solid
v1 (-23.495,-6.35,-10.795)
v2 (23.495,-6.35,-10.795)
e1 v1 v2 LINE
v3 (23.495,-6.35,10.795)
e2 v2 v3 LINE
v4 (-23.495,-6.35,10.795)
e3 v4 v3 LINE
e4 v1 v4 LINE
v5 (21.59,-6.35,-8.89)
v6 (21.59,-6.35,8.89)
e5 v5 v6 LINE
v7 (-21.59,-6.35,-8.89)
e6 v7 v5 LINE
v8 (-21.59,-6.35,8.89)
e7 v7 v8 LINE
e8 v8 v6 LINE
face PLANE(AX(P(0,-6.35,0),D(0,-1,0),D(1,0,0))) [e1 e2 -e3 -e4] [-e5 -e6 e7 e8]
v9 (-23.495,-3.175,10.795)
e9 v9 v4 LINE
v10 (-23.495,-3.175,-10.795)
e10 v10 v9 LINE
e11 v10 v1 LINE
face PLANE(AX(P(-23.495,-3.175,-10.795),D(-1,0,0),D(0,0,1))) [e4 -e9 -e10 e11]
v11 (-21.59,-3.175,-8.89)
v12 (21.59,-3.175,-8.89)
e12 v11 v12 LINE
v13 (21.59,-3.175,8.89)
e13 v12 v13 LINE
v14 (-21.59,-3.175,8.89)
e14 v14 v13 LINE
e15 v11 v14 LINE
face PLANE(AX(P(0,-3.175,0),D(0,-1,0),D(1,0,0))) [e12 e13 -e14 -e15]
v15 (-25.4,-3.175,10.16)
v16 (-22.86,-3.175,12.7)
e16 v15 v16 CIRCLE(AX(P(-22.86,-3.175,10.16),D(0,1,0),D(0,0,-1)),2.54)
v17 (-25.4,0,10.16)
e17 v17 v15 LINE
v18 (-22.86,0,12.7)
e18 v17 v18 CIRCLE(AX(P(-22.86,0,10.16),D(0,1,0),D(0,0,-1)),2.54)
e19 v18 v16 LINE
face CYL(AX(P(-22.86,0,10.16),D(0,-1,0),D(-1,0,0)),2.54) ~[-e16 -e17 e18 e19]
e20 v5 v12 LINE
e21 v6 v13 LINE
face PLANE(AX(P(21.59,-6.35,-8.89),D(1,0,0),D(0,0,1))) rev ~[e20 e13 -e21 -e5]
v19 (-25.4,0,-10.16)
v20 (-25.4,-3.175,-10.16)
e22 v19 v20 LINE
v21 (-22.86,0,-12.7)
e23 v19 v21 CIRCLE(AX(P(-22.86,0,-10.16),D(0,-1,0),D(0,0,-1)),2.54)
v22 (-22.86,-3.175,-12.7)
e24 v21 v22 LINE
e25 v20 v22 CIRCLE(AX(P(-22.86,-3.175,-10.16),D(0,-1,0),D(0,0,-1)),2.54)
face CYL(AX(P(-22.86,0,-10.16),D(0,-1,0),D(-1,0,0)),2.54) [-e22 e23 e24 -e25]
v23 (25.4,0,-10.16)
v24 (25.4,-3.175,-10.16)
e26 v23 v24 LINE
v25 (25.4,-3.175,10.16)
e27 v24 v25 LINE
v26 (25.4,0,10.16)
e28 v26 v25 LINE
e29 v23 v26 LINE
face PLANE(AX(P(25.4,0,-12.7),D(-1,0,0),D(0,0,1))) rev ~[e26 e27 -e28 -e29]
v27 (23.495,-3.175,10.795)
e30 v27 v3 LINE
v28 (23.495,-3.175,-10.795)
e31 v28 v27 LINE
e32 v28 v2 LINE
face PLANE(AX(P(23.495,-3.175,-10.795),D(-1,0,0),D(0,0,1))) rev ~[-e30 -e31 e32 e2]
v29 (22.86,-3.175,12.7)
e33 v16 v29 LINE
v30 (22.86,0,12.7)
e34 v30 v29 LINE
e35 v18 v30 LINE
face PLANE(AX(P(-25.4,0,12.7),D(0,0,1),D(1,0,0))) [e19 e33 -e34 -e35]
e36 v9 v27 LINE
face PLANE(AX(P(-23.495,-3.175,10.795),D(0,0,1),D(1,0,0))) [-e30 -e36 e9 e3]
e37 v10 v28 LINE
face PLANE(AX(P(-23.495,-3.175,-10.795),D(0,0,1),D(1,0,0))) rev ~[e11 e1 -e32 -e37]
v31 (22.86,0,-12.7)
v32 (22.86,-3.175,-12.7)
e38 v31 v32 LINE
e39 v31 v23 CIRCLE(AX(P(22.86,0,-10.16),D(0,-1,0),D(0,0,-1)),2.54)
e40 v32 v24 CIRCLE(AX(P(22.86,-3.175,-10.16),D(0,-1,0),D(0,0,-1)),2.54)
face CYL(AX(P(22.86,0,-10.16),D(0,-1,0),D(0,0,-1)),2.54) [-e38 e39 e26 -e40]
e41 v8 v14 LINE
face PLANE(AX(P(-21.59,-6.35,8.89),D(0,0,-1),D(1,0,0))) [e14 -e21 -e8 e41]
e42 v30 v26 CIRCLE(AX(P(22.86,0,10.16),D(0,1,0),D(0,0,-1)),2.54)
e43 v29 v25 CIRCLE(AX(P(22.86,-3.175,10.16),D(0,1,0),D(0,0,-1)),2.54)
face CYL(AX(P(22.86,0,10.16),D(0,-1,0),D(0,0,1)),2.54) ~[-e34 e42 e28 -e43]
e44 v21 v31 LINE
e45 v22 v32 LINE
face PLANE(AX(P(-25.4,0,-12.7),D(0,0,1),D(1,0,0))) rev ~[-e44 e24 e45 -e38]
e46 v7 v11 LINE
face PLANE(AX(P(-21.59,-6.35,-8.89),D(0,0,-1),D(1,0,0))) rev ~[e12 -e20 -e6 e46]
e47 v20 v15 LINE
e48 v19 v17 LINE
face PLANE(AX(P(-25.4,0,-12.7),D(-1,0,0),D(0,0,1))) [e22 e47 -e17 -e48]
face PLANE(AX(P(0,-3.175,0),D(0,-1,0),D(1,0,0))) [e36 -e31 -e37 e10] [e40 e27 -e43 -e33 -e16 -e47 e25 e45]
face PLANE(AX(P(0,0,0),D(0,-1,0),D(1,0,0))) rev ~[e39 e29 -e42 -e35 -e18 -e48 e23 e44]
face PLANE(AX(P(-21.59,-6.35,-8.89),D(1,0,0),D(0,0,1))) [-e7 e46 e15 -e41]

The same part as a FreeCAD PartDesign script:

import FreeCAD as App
import Part
import Sketcher
Q = App.Units.Quantity


def edges_at(feature, points):
    """Names of the edges that pass closest to the given points."""
    edges = feature.Shape.Edges
    near = lambda p: min(range(len(edges)), key=lambda i: edges[i].distToShape(Part.Vertex(*p))[0])
    return sorted({f"Edge{near(p) + 1}" for p in points})

doc = App.newDocument("Part")
body = doc.addObject("PartDesign::Body", "Body")

# Sketch on XZ plane
sketch1 = body.newObject("Sketcher::SketchObject", "Sketch")
sketch1.AttachmentSupport = (doc.getObject("XZ_Plane"), [""])
sketch1.MapMode = "FlatFace"
sketch1.addGeometry([
    Part.LineSegment(App.Vector(-25, 13, 0), App.Vector(-25, -13, 0)),
    Part.LineSegment(App.Vector(-25, -13, 0), App.Vector(25, -13, 0)),
    Part.LineSegment(App.Vector(25, -13, 0), App.Vector(25, 13, 0)),
    Part.LineSegment(App.Vector(25, 13, 0), App.Vector(-25, 13, 0)),
], False)
sketch1.addConstraint([
    Sketcher.Constraint("Coincident", 0, 2, 1, 1),
    Sketcher.Constraint("Coincident", 1, 2, 2, 1),
    Sketcher.Constraint("Coincident", 2, 2, 3, 1),
    Sketcher.Constraint("Coincident", 3, 2, 0, 1),
    Sketcher.Constraint("Vertical", 0),
    Sketcher.Constraint("Horizontal", 1),
    Sketcher.Constraint("Vertical", 2),
    Sketcher.Constraint("Horizontal", 3),
    Sketcher.Constraint("Symmetric", 0, 2, 2, 2, -1, 1),
    Sketcher.Constraint("DistanceX", 1, 1, 1, 2, Q("2 in")),
    Sketcher.Constraint("DistanceY", 0, 2, 0, 1, Q("1 in")),
])
pad1 = body.newObject("PartDesign::Pad", "Pad")
pad1.Profile = sketch1
pad1.Length = Q("0.125 in")

# Sketch on XZ plane
sketch2 = body.newObject("Sketcher::SketchObject", "Sketch001")
sketch2.AttachmentSupport = (doc.getObject("XZ_Plane"), [""])
sketch2.MapMode = "FlatFace"
sketch2.AttachmentOffset = App.Placement(App.Vector(0, 0, 0.125 * 25.4), App.Rotation())
sketch2.addGeometry([
    Part.LineSegment(App.Vector(-23, 11, 0), App.Vector(-23, -11, 0)),
    Part.LineSegment(App.Vector(-23, -11, 0), App.Vector(23, -11, 0)),
    Part.LineSegment(App.Vector(23, -11, 0), App.Vector(23, 11, 0)),
    Part.LineSegment(App.Vector(23, 11, 0), App.Vector(-23, 11, 0)),
], False)
sketch2.addConstraint([
    Sketcher.Constraint("Coincident", 0, 2, 1, 1),
    Sketcher.Constraint("Coincident", 1, 2, 2, 1),
    Sketcher.Constraint("Coincident", 2, 2, 3, 1),
    Sketcher.Constraint("Coincident", 3, 2, 0, 1),
    Sketcher.Constraint("Vertical", 0),
    Sketcher.Constraint("Horizontal", 1),
    Sketcher.Constraint("Vertical", 2),
    Sketcher.Constraint("Horizontal", 3),
    Sketcher.Constraint("Symmetric", 0, 2, 2, 2, -1, 1),
    Sketcher.Constraint("DistanceX", 1, 1, 1, 2, Q("1.85 in")),
    Sketcher.Constraint("DistanceY", 0, 2, 0, 1, Q("0.85 in")),
])
pad2 = body.newObject("PartDesign::Pad", "Pad001")
pad2.Profile = sketch2
pad2.Length = Q("0.125 in")

# Sketch on XZ plane
sketch3 = body.newObject("Sketcher::SketchObject", "Sketch002")
sketch3.AttachmentSupport = (doc.getObject("XZ_Plane"), [""])
sketch3.MapMode = "FlatFace"
sketch3.AttachmentOffset = App.Placement(App.Vector(0, 0, 0.25 * 25.4), App.Rotation())
sketch3.addGeometry([
    Part.LineSegment(App.Vector(-22, 9, 0), App.Vector(-22, -9, 0)),
    Part.LineSegment(App.Vector(-22, -9, 0), App.Vector(22, -9, 0)),
    Part.LineSegment(App.Vector(22, -9, 0), App.Vector(22, 9, 0)),
    Part.LineSegment(App.Vector(22, 9, 0), App.Vector(-22, 9, 0)),
], False)
sketch3.addConstraint([
    Sketcher.Constraint("Coincident", 0, 2, 1, 1),
    Sketcher.Constraint("Coincident", 1, 2, 2, 1),
    Sketcher.Constraint("Coincident", 2, 2, 3, 1),
    Sketcher.Constraint("Coincident", 3, 2, 0, 1),
    Sketcher.Constraint("Vertical", 0),
    Sketcher.Constraint("Horizontal", 1),
    Sketcher.Constraint("Vertical", 2),
    Sketcher.Constraint("Horizontal", 3),
    Sketcher.Constraint("Symmetric", 0, 2, 2, 2, -1, 1),
    Sketcher.Constraint("DistanceX", 1, 1, 1, 2, Q("1.7 in")),
    Sketcher.Constraint("DistanceY", 0, 2, 0, 1, Q("0.7 in")),
])
pocket1 = body.newObject("PartDesign::Pocket", "Pocket")
pocket1.Profile = sketch3
pocket1.Length = Q("0.125 in")
doc.recompute()

fillet = body.newObject("PartDesign::Fillet", "Fillet")
fillet.Base = (pocket1, edges_at(pocket1, [
    (-25.4, -1.587, -12.7),
    (25.4, -1.587, -12.7),
    (25.4, -1.587, 12.7),
    (-25.4, -1.587, 12.7),
]))
fillet.Radius = Q("0.1 in")

doc.recompute()
